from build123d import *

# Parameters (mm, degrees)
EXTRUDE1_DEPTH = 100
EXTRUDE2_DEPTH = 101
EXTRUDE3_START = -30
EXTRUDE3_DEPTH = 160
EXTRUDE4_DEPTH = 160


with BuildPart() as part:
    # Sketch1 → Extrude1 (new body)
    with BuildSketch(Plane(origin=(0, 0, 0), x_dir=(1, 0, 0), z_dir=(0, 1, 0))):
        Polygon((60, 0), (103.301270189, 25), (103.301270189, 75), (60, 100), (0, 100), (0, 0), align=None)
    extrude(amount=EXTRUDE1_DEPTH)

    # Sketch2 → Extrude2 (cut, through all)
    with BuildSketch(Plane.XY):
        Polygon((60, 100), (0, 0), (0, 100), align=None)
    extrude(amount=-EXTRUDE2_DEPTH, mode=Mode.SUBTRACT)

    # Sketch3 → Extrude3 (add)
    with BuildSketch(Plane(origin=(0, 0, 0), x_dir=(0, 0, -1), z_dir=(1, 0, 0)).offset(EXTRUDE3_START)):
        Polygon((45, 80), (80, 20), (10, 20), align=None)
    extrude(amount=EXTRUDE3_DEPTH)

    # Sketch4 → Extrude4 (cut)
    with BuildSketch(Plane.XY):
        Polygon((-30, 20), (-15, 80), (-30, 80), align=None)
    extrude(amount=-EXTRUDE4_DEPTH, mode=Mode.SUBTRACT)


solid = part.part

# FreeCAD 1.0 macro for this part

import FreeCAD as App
import Part
import Sketcher
from FreeCAD import Vector
Q = App.Units.Quantity


def add_polygon(sketch, points):
    """Adds a closed chain of lines whose ends are joined by coincident constraints."""
    first, n = sketch.GeometryCount, len(points)
    for a, b in zip(points, points[1:] + points[:1]):
        sketch.addGeometry(Part.LineSegment(App.Vector(*a, 0), App.Vector(*b, 0)), False)
    for i in range(n):
        sketch.addConstraint(Sketcher.Constraint("Coincident", first + i, 2, first + (i + 1) % n, 1))

doc = App.newDocument("Part")
body = doc.addObject("PartDesign::Body", "Body")

# Sketch on XZ plane
sketch1 = doc.addObject("Sketcher::SketchObject", "Sketch")
body.addObject(sketch1)
sketch1.AttachmentSupport = (doc.XZ_Plane, [""])
sketch1.MapMode = "FlatFace"
add_polygon(sketch1, [(60, 0), (103, -25), (103, -75), (60, -100), (0, -100), (0, 0)])  # lines 0-5
sketch1.addConstraint(Sketcher.Constraint("Vertical", 1))
sketch1.addConstraint(Sketcher.Constraint("Horizontal", 3))
sketch1.addConstraint(Sketcher.Constraint("Vertical", 4))
sketch1.addConstraint(Sketcher.Constraint("Horizontal", 5))
sketch1.addConstraint(Sketcher.Constraint("Coincident", 4, 2, -1, 1))
sketch1.addConstraint(Sketcher.Constraint("Vertical", 2, 2, 5, 2))
sketch1.addConstraint(Sketcher.Constraint("Equal", 0, 2))
sketch1.addConstraint(Sketcher.Constraint("DistanceX", 3, 2, 3, 1, 60.0))
sketch1.addConstraint(Sketcher.Constraint("DistanceY", 1, 2, 1, 1, 50.0))
sketch1.addConstraint(Sketcher.Constraint("DistanceY", 4, 1, 4, 2, 100.0))
sketch1.addConstraint(Sketcher.Constraint("Angle", 0, Q("-30 deg")))
pad1 = doc.addObject("PartDesign::Pad", "Pad")
body.addObject(pad1)
pad1.Profile = sketch1
pad1.Length = 100
pad1.Reversed = True

# Sketch on XY plane
sketch2 = doc.addObject("Sketcher::SketchObject", "Sketch001")
body.addObject(sketch2)
sketch2.AttachmentSupport = (doc.XY_Plane, [""])
sketch2.MapMode = "FlatFace"
add_polygon(sketch2, [(0, 0), (60, 100), (0, 100)])  # lines 0-2
sketch2.addConstraint(Sketcher.Constraint("Horizontal", 1))
sketch2.addConstraint(Sketcher.Constraint("Vertical", 2))
sketch2.addConstraint(Sketcher.Constraint("Coincident", 2, 2, -1, 1))
sketch2.addConstraint(Sketcher.Constraint("DistanceX", 1, 2, 1, 1, 60.0))
sketch2.addConstraint(Sketcher.Constraint("DistanceY", 2, 2, 2, 1, 100.0))
pocket1 = doc.addObject("PartDesign::Pocket", "Pocket")
body.addObject(pocket1)
pocket1.Profile = sketch2
pocket1.Type = "ThroughAll"

# Sketch on YZ plane
sketch3 = doc.addObject("Sketcher::SketchObject", "Sketch002")
body.addObject(sketch3)
sketch3.AttachmentSupport = (doc.YZ_Plane, [""])
sketch3.MapMode = "FlatFace"
sketch3.AttachmentOffset = App.Placement(Vector(0, 0, -30), App.Rotation())
add_polygon(sketch3, [(20, -80), (80, -45), (20, -10)])  # lines 0-2
sketch3.addConstraint(Sketcher.Constraint("Vertical", 2))
sketch3.addConstraint(Sketcher.Constraint("Equal", 0, 1))
sketch3.addConstraint(Sketcher.Constraint("DistanceY", 2, 2, 2, 1, 70.0))
sketch3.addConstraint(Sketcher.Constraint("DistanceX", -1, 1, 0, 2, 80.0))
sketch3.addConstraint(Sketcher.Constraint("DistanceY", 0, 2, -1, 1, 45.0))
sketch3.addConstraint(Sketcher.Constraint("DistanceX", -1, 1, 1, 2, 20.0))
pad2 = doc.addObject("PartDesign::Pad", "Pad001")
body.addObject(pad2)
pad2.Profile = sketch3
pad2.Length = 160

# Sketch on XY plane
sketch4 = doc.addObject("Sketcher::SketchObject", "Sketch003")
body.addObject(sketch4)
sketch4.AttachmentSupport = (doc.XY_Plane, [""])
sketch4.MapMode = "FlatFace"
add_polygon(sketch4, [(-30, 20), (-15, 80), (-30, 80)])  # lines 0-2
sketch4.addConstraint(Sketcher.Constraint("Horizontal", 1))
sketch4.addConstraint(Sketcher.Constraint("Vertical", 2))
sketch4.addConstraint(Sketcher.Constraint("DistanceX", 1, 2, 1, 1, 15.0))
sketch4.addConstraint(Sketcher.Constraint("DistanceY", 2, 2, 2, 1, 60.0))
sketch4.addConstraint(Sketcher.Constraint("DistanceX", 0, 2, -1, 1, 15.0))
sketch4.addConstraint(Sketcher.Constraint("DistanceY", -1, 1, 0, 2, 80.0))
pocket2 = doc.addObject("PartDesign::Pocket", "Pocket001")
body.addObject(pocket2)
pocket2.Profile = sketch4
pocket2.Length = 160

doc.recompute()
